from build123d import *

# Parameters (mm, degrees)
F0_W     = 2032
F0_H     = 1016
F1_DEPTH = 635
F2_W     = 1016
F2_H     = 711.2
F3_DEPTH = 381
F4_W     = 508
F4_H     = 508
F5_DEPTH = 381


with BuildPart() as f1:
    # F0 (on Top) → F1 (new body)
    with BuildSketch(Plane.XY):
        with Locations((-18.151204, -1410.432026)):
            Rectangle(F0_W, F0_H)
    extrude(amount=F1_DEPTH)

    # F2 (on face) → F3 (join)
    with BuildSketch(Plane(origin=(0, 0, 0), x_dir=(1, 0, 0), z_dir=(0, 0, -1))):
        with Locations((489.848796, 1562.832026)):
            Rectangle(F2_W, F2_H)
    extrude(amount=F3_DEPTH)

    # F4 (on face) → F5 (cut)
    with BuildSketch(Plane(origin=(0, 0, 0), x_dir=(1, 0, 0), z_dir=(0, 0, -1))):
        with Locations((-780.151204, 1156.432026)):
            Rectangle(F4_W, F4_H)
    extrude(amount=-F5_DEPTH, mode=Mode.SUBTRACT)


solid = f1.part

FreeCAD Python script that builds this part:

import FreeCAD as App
import Part
import Sketcher
from FreeCAD import Vector
Q = App.Units.Quantity


def add_polygon(sketch, points):
    """Adds a closed chain of lines whose ends are joined by coincident constraints."""
    first, n = sketch.GeometryCount, len(points)
    for a, b in zip(points, points[1:] + points[:1]):
        sketch.addGeometry(Part.LineSegment(App.Vector(*a, 0), App.Vector(*b, 0)), False)
    for i in range(n):
        sketch.addConstraint(Sketcher.Constraint("Coincident", first + i, 2, first + (i + 1) % n, 1))

doc = App.newDocument("Part")
body = doc.addObject("PartDesign::Body", "Body")

# Sketch on XY plane
sketch1 = doc.addObject("Sketcher::SketchObject", "Sketch")
body.addObject(sketch1)
sketch1.AttachmentSupport = (doc.XY_Plane, [""])
sketch1.MapMode = "FlatFace"
add_polygon(sketch1, [(-1034, -902), (-1034, -1918), (998, -1918), (998, -902)])  # lines 0-3
sketch1.addConstraint([
    Sketcher.Constraint("Vertical", 0),
    Sketcher.Constraint("Horizontal", 1),
    Sketcher.Constraint("Vertical", 2),
    Sketcher.Constraint("Horizontal", 3),
    Sketcher.Constraint("DistanceX", 1, 1, 1, 2, Q("80 in")),
    Sketcher.Constraint("DistanceY", 0, 2, 0, 1, Q("40 in")),
    Sketcher.Constraint("DistanceX", 0, 2, -1, 1, Q("1034.151204 mm")),
    Sketcher.Constraint("DistanceY", 0, 2, -1, 1, Q("1918.432026 mm")),
])
pad1 = doc.addObject("PartDesign::Pad", "Pad")
body.addObject(pad1)
pad1.Profile = sketch1
pad1.Length = Q("25 in")

# Sketch on XY plane
sketch2 = doc.addObject("Sketcher::SketchObject", "Sketch001")
body.addObject(sketch2)
sketch2.AttachmentSupport = (doc.XY_Plane, [""])
sketch2.MapMode = "FlatFace"
add_polygon(sketch2, [(-18, -1918), (-18, -1207), (998, -1207), (998, -1918)])  # lines 0-3
sketch2.addConstraint([
    Sketcher.Constraint("Vertical", 0),
    Sketcher.Constraint("Horizontal", 1),
    Sketcher.Constraint("Vertical", 2),
    Sketcher.Constraint("Horizontal", 3),
    Sketcher.Constraint("DistanceX", 1, 1, 1, 2, Q("40 in")),
    Sketcher.Constraint("DistanceY", 0, 1, 0, 2, Q("28 in")),
    Sketcher.Constraint("DistanceX", 0, 2, -1, 1, Q("18.151204 mm")),
    Sketcher.Constraint("DistanceY", 0, 2, -1, 1, Q("1207.232026 mm")),
])
pad2 = doc.addObject("PartDesign::Pad", "Pad001")
body.addObject(pad2)
pad2.Profile = sketch2
pad2.Length = Q("15 in")
pad2.Reversed = True

# Sketch on XY plane
sketch3 = doc.addObject("Sketcher::SketchObject", "Sketch002")
body.addObject(sketch3)
sketch3.AttachmentSupport = (doc.XY_Plane, [""])
sketch3.MapMode = "FlatFace"
add_polygon(sketch3, [(-1034, -1410), (-1034, -902), (-526, -902), (-526, -1410)])  # lines 0-3
sketch3.addConstraint([
    Sketcher.Constraint("Vertical", 0),
    Sketcher.Constraint("Horizontal", 1),
    Sketcher.Constraint("Vertical", 2),
    Sketcher.Constraint("Horizontal", 3),
    Sketcher.Constraint("Equal", 3, 0),
    Sketcher.Constraint("DistanceX", 1, 1, 1, 2, Q("20 in")),
    Sketcher.Constraint("DistanceX", 0, 2, -1, 1, Q("1034.151204 mm")),
    Sketcher.Constraint("DistanceY", 0, 2, -1, 1, Q("902.432026 mm")),
])
pocket1 = doc.addObject("PartDesign::Pocket", "Pocket")
body.addObject(pocket1)
pocket1.Profile = sketch3
pocket1.Length = Q("15 in")
pocket1.Reversed = True

doc.recompute()
